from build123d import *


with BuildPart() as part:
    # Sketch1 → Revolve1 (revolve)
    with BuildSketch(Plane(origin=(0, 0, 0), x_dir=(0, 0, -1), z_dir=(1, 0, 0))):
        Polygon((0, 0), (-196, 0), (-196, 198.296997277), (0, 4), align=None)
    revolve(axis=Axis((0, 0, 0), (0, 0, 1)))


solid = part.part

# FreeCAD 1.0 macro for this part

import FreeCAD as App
import Part
import Sketcher

V = App.Vector
Q = App.Units.Quantity

doc = App.newDocument("Part")
body = doc.addObject("PartDesign::Body", "Body")

# Sketch on YZ plane
sketch1 = body.newObject("Sketcher::SketchObject", "Sketch")
sketch1.AttachmentSupport = (doc.getObject("YZ_Plane"), [""])
sketch1.MapMode = "FlatFace"
sketch1.addGeometry([
    Part.LineSegment(V(0, 196, 0), V(0, 0, 0)),
    Part.LineSegment(V(0, 0, 0), V(4, 0, 0)),
    Part.LineSegment(V(4, 0, 0), V(198.3, 196, 0)),
    Part.LineSegment(V(198.3, 196, 0), V(0, 196, 0)),
], False)
sketch1.addConstraint([
    Sketcher.Constraint("Coincident", 0, 2, 1, 1),
    Sketcher.Constraint("Coincident", 1, 2, 2, 1),
    Sketcher.Constraint("Coincident", 2, 2, 3, 1),
    Sketcher.Constraint("Coincident", 3, 2, 0, 1),
    Sketcher.Constraint("Vertical", 0),
    Sketcher.Constraint("Horizontal", 1),
    Sketcher.Constraint("Horizontal", 3),
    Sketcher.Constraint("Coincident", 0, 2, -1, 1),
    Sketcher.Constraint("DistanceX", 1, 1, 1, 2, Q("4 mm")),
    Sketcher.Constraint("DistanceY", 0, 2, 0, 1, Q("196 mm")),
    Sketcher.Constraint("Angle", 2, Q("45.25 deg")),
])
revolution = body.newObject("PartDesign::Revolution", "Revolution")
revolution.Profile = sketch1
revolution.ReferenceAxis = (sketch1, ["V_Axis"])
revolution.Angle = 360

doc.recompute()
